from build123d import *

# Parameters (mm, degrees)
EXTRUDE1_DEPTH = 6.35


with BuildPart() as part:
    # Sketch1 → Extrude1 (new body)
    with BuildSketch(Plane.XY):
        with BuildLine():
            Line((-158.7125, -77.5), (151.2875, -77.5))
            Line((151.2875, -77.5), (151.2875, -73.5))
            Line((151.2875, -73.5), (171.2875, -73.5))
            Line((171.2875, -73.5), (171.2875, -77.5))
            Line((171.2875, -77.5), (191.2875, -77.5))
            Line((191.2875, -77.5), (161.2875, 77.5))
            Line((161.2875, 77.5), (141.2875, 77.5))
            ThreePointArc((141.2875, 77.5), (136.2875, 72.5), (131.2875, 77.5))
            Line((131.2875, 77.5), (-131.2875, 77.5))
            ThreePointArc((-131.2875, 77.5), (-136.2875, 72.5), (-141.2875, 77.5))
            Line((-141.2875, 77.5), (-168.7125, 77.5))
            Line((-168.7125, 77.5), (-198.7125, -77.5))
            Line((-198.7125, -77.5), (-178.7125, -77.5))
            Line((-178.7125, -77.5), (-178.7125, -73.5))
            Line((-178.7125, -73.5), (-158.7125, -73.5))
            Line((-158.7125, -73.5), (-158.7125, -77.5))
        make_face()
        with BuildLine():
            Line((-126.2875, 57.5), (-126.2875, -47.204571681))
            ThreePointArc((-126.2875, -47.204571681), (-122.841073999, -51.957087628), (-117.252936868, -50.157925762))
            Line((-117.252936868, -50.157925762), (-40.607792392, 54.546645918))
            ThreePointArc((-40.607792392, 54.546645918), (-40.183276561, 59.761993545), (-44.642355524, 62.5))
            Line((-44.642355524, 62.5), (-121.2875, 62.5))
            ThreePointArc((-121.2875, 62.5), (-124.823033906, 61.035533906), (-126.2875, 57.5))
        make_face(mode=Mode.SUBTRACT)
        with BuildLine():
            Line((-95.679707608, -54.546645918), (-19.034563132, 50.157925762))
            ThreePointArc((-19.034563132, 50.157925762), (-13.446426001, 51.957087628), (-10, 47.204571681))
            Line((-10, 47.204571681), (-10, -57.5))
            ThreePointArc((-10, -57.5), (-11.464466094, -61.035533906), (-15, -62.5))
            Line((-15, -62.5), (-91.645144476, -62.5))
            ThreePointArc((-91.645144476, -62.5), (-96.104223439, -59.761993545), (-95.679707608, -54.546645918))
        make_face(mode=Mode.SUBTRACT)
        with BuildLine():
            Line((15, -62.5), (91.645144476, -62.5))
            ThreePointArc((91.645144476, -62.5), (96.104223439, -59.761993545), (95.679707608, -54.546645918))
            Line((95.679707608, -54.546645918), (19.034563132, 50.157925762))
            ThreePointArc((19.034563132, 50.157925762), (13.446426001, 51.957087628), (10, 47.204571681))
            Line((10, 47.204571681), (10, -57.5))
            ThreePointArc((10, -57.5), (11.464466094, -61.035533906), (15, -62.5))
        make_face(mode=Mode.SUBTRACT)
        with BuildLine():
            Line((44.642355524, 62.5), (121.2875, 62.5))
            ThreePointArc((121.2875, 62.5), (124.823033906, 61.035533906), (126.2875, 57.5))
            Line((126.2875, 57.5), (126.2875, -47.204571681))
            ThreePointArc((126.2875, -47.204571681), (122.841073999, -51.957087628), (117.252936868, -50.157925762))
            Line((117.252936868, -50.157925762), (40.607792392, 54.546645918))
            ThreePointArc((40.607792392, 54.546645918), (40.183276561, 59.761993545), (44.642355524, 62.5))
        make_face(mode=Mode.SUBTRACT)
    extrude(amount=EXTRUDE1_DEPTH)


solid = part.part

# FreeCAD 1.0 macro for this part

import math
import FreeCAD as App
import Part
import Sketcher
from FreeCAD import Vector
Q = App.Units.Quantity

doc = App.newDocument("Part")
body = doc.addObject("PartDesign::Body", "Body")

# Sketch on XY plane
sketch1 = body.newObject("Sketcher::SketchObject", "Sketch")
sketch1.AttachmentSupport = (doc.getObject("XY_Plane"), [""])
sketch1.MapMode = "FlatFace"
sketch1.addGeometry([
    Part.LineSegment(Vector(-158.7125, -77.5, 0), Vector(151.2875, -77.5, 0)),  # 0
    Part.LineSegment(Vector(151.2875, -77.5, 0), Vector(151.2875, -73.5, 0)),  # 1
    Part.LineSegment(Vector(151.2875, -73.5, 0), Vector(171.2875, -73.5, 0)),  # 2
    Part.LineSegment(Vector(171.2875, -73.5, 0), Vector(171.2875, -77.5, 0)),  # 3
    Part.LineSegment(Vector(171.2875, -77.5, 0), Vector(191.2875, -77.5, 0)),  # 4
    Part.LineSegment(Vector(191.2875, -77.5, 0), Vector(161.2875, 77.5, 0)),  # 5
    Part.LineSegment(Vector(161.2875, 77.5, 0), Vector(141.2875, 77.5, 0)),  # 6
    Part.ArcOfCircle(Part.Circle(Vector(136.2875, 77.5, 0), Vector(0, 0, 1), 5), math.radians(180), math.radians(360)),  # 7
    Part.LineSegment(Vector(131.2875, 77.5, 0), Vector(-131.2875, 77.5, 0)),  # 8
    Part.ArcOfCircle(Part.Circle(Vector(-136.2875, 77.5, 0), Vector(0, 0, 1), 5), math.radians(180), math.radians(360)),  # 9
    Part.LineSegment(Vector(-141.2875, 77.5, 0), Vector(-168.7125, 77.5, 0)),  # 10
    Part.LineSegment(Vector(-168.7125, 77.5, 0), Vector(-198.7125, -77.5, 0)),  # 11
    Part.LineSegment(Vector(-198.7125, -77.5, 0), Vector(-178.7125, -77.5, 0)),  # 12
    Part.LineSegment(Vector(-178.7125, -77.5, 0), Vector(-178.7125, -73.5, 0)),  # 13
    Part.LineSegment(Vector(-178.7125, -73.5, 0), Vector(-158.7125, -73.5, 0)),  # 14
    Part.LineSegment(Vector(-158.7125, -73.5, 0), Vector(-158.7125, -77.5, 0)),  # 15
    Part.ArcOfCircle(Part.Circle(Vector(-91.645144, -57.5, 0), Vector(0, 0, 1), 5), math.radians(143.795374), math.radians(270)),  # 16
    Part.LineSegment(Vector(-95.679708, -54.546646, 0), Vector(-19.034563, 50.157926, 0)),  # 17
    Part.ArcOfCircle(Part.Circle(Vector(-15, 47.204572, 0), Vector(0, 0, 1), 5), math.radians(0), math.radians(143.795374)),  # 18
    Part.LineSegment(Vector(-10, 47.204572, 0), Vector(-10, -57.5, 0)),  # 19
    Part.ArcOfCircle(Part.Circle(Vector(-15, -57.5, 0), Vector(0, 0, 1), 5), math.radians(-90), math.radians(0)),  # 20
    Part.LineSegment(Vector(-15, -62.5, 0), Vector(-91.645144, -62.5, 0)),  # 21
    Part.LineSegment(Vector(91.645144, -62.5, 0), Vector(15, -62.5, 0)),  # 22
    Part.ArcOfCircle(Part.Circle(Vector(15, -57.5, 0), Vector(0, 0, 1), 5), math.radians(180), math.radians(270)),  # 23
    Part.LineSegment(Vector(10, -57.5, 0), Vector(10, 47.204572, 0)),  # 24
    Part.ArcOfCircle(Part.Circle(Vector(15, 47.204572, 0), Vector(0, 0, 1), 5), math.radians(36.204626), math.radians(180)),  # 25
    Part.LineSegment(Vector(19.034563, 50.157926, 0), Vector(95.679708, -54.546646, 0)),  # 26
    Part.ArcOfCircle(Part.Circle(Vector(91.645144, -57.5, 0), Vector(0, 0, 1), 5), math.radians(-90), math.radians(36.204626)),  # 27
    Part.LineSegment(Vector(-126.2875, -47.204572, 0), Vector(-126.2875, 57.5, 0)),  # 28
    Part.ArcOfCircle(Part.Circle(Vector(-121.2875, 57.5, 0), Vector(0, 0, 1), 5), math.radians(90), math.radians(180)),  # 29
    Part.LineSegment(Vector(-121.2875, 62.5, 0), Vector(-44.642356, 62.5, 0)),  # 30
    Part.ArcOfCircle(Part.Circle(Vector(-44.642356, 57.5, 0), Vector(0, 0, 1), 5), math.radians(-36.204626), math.radians(90)),  # 31
    Part.LineSegment(Vector(-40.607792, 54.546646, 0), Vector(-117.252937, -50.157926, 0)),  # 32
    Part.ArcOfCircle(Part.Circle(Vector(-121.2875, -47.204572, 0), Vector(0, 0, 1), 5), math.radians(180), math.radians(323.795374)),  # 33
    Part.ArcOfCircle(Part.Circle(Vector(44.642356, 57.5, 0), Vector(0, 0, 1), 5), math.radians(90), math.radians(216.204626)),  # 34
    Part.LineSegment(Vector(44.642356, 62.5, 0), Vector(121.2875, 62.5, 0)),  # 35
    Part.ArcOfCircle(Part.Circle(Vector(121.2875, 57.5, 0), Vector(0, 0, 1), 5), math.radians(0), math.radians(90)),  # 36
    Part.LineSegment(Vector(126.2875, 57.5, 0), Vector(126.2875, -47.204572, 0)),  # 37
    Part.ArcOfCircle(Part.Circle(Vector(121.2875, -47.204572, 0), Vector(0, 0, 1), 5), math.radians(-143.795374), math.radians(0)),  # 38
    Part.LineSegment(Vector(117.252937, -50.157926, 0), Vector(40.607792, 54.546646, 0)),  # 39
], False)
sketch1.addConstraint([
    Sketcher.Constraint("Coincident", 0, 2, 1, 1),
    Sketcher.Constraint("Coincident", 1, 2, 2, 1),
    Sketcher.Constraint("Coincident", 2, 2, 3, 1),
    Sketcher.Constraint("Coincident", 3, 2, 4, 1),
    Sketcher.Constraint("Coincident", 4, 2, 5, 1),
    Sketcher.Constraint("Coincident", 5, 2, 6, 1),
    Sketcher.Constraint("Coincident", 6, 2, 7, 2),
    Sketcher.Constraint("Coincident", 7, 1, 8, 1),
    Sketcher.Constraint("Coincident", 8, 2, 9, 2),
    Sketcher.Constraint("Coincident", 9, 1, 10, 1),
    Sketcher.Constraint("Coincident", 10, 2, 11, 1),
    Sketcher.Constraint("Coincident", 11, 2, 12, 1),
    Sketcher.Constraint("Coincident", 12, 2, 13, 1),
    Sketcher.Constraint("Coincident", 13, 2, 14, 1),
    Sketcher.Constraint("Coincident", 14, 2, 15, 1),
    Sketcher.Constraint("Coincident", 15, 2, 0, 1),
    Sketcher.Constraint("Tangent", 16, 1, 17, 1),
    Sketcher.Constraint("Tangent", 17, 2, 18, 2),
    Sketcher.Constraint("Tangent", 18, 1, 19, 1),
    Sketcher.Constraint("Tangent", 19, 2, 20, 2),
    Sketcher.Constraint("Tangent", 20, 1, 21, 1),
    Sketcher.Constraint("Tangent", 21, 2, 16, 2),
    Sketcher.Constraint("Tangent", 22, 2, 23, 2),
    Sketcher.Constraint("Tangent", 23, 1, 24, 1),
    Sketcher.Constraint("Tangent", 24, 2, 25, 2),
    Sketcher.Constraint("Tangent", 25, 1, 26, 1),
    Sketcher.Constraint("Tangent", 26, 2, 27, 2),
    Sketcher.Constraint("Tangent", 27, 1, 22, 1),
    Sketcher.Constraint("Tangent", 28, 2, 29, 2),
    Sketcher.Constraint("Tangent", 29, 1, 30, 1),
    Sketcher.Constraint("Tangent", 30, 2, 31, 2),
    Sketcher.Constraint("Tangent", 31, 1, 32, 1),
    Sketcher.Constraint("Tangent", 32, 2, 33, 2),
    Sketcher.Constraint("Tangent", 33, 1, 28, 1),
    Sketcher.Constraint("Tangent", 34, 1, 35, 1),
    Sketcher.Constraint("Tangent", 35, 2, 36, 2),
    Sketcher.Constraint("Tangent", 36, 1, 37, 1),
    Sketcher.Constraint("Tangent", 37, 2, 38, 2),
    Sketcher.Constraint("Tangent", 38, 1, 39, 1),
    Sketcher.Constraint("Tangent", 39, 2, 34, 2),
    Sketcher.Constraint("Horizontal", 0),
    Sketcher.Constraint("Vertical", 1),
    Sketcher.Constraint("Horizontal", 2),
    Sketcher.Constraint("Vertical", 3),
    Sketcher.Constraint("Horizontal", 4),
    Sketcher.Constraint("Horizontal", 6),
    Sketcher.Constraint("Horizontal", 8),
    Sketcher.Constraint("Horizontal", 10),
    Sketcher.Constraint("Horizontal", 12),
    Sketcher.Constraint("Vertical", 13),
    Sketcher.Constraint("Horizontal", 14),
    Sketcher.Constraint("Vertical", 15),
    Sketcher.Constraint("Vertical", 19),
    Sketcher.Constraint("Horizontal", 21),
    Sketcher.Constraint("Horizontal", 22),
    Sketcher.Constraint("Vertical", 24),
    Sketcher.Constraint("Vertical", 28),
    Sketcher.Constraint("Horizontal", 30),
    Sketcher.Constraint("Horizontal", 35),
    Sketcher.Constraint("Vertical", 37),
    Sketcher.Constraint("Equal", 7, 9),
    Sketcher.Constraint("Equal", 9, 16),
    Sketcher.Constraint("Equal", 16, 18),
    Sketcher.Constraint("Equal", 18, 20),
    Sketcher.Constraint("Equal", 20, 23),
    Sketcher.Constraint("Equal", 23, 25),
    Sketcher.Constraint("Equal", 25, 27),
    Sketcher.Constraint("Equal", 27, 29),
    Sketcher.Constraint("Equal", 29, 31),
    Sketcher.Constraint("Equal", 31, 33),
    Sketcher.Constraint("Equal", 33, 34),
    Sketcher.Constraint("Equal", 34, 36),
    Sketcher.Constraint("Equal", 36, 38),
    Sketcher.Constraint("Symmetric", 7, 3, 9, 3, -2),
    Sketcher.Constraint("Symmetric", 20, 3, 23, 3, -2),
    Sketcher.Constraint("Symmetric", 31, 3, 34, 3, -2),
    Sketcher.Constraint("Symmetric", 33, 3, 38, 3, -2),
    Sketcher.Constraint("Symmetric", 17, 2, 25, 1, -2),
    Sketcher.Constraint("Parallel", 17, 32),
    Sketcher.Constraint("Horizontal", 0, 2, 3, 2),
    Sketcher.Constraint("Horizontal", 9, 3, 5, 2),
    Sketcher.Constraint("Horizontal", 6, 2, 7, 1),
    Sketcher.Constraint("Horizontal", 8, 2, 9, 1),
    Sketcher.Constraint("Horizontal", 4, 2, 11, 2),
    Sketcher.Constraint("Horizontal", 2, 2, 13, 2),
    Sketcher.Constraint("Equal", 2, 4),
    Sketcher.Constraint("Equal", 4, 6),
    Sketcher.Constraint("Equal", 6, 12),
    Sketcher.Constraint("Equal", 12, 14),
    Sketcher.Constraint("Equal", 22, 30),
    Sketcher.Constraint("Equal", 5, 11),
    Sketcher.Constraint("Radius", 7, Q("5 mm")),
    Sketcher.Constraint("DistanceX", 0, 1, 0, 2, Q("310 mm")),
    Sketcher.Constraint("DistanceX", 2, 1, 2, 2, Q("20 mm")),
    Sketcher.Constraint("DistanceY", 1, 1, 1, 2, Q("4 mm")),
    Sketcher.Constraint("DistanceX", 18, 3, -1, 1, Q("15 mm")),
    Sketcher.Constraint("DistanceY", 16, 3, 9, 3, Q("135 mm")),
    Sketcher.Constraint("DistanceX", 9, 3, 29, 3, Q("15 mm")),
    Sketcher.Constraint("DistanceY", 29, 3, 9, 3, Q("20 mm")),
    Sketcher.Constraint("DistanceX", 38, 3, 0, 2, Q("30 mm")),
    Sketcher.Constraint("DistanceY", 0, 2, 27, 3, Q("20 mm")),
    Sketcher.Constraint("DistanceY", -1, 1, 7, 3, Q("77.5 mm")),
    Sketcher.Constraint("DistanceX", 8, 2, 8, 1, Q("262.575 mm")),
    Sketcher.Constraint("DistanceY", 19, 2, 19, 1, Q("104.704572 mm")),
    Sketcher.Constraint("Distance", 17, Q("129.759491 mm")),
])
pad1 = body.newObject("PartDesign::Pad", "Pad")
pad1.Profile = sketch1
pad1.Length = 6.35

doc.recompute()
